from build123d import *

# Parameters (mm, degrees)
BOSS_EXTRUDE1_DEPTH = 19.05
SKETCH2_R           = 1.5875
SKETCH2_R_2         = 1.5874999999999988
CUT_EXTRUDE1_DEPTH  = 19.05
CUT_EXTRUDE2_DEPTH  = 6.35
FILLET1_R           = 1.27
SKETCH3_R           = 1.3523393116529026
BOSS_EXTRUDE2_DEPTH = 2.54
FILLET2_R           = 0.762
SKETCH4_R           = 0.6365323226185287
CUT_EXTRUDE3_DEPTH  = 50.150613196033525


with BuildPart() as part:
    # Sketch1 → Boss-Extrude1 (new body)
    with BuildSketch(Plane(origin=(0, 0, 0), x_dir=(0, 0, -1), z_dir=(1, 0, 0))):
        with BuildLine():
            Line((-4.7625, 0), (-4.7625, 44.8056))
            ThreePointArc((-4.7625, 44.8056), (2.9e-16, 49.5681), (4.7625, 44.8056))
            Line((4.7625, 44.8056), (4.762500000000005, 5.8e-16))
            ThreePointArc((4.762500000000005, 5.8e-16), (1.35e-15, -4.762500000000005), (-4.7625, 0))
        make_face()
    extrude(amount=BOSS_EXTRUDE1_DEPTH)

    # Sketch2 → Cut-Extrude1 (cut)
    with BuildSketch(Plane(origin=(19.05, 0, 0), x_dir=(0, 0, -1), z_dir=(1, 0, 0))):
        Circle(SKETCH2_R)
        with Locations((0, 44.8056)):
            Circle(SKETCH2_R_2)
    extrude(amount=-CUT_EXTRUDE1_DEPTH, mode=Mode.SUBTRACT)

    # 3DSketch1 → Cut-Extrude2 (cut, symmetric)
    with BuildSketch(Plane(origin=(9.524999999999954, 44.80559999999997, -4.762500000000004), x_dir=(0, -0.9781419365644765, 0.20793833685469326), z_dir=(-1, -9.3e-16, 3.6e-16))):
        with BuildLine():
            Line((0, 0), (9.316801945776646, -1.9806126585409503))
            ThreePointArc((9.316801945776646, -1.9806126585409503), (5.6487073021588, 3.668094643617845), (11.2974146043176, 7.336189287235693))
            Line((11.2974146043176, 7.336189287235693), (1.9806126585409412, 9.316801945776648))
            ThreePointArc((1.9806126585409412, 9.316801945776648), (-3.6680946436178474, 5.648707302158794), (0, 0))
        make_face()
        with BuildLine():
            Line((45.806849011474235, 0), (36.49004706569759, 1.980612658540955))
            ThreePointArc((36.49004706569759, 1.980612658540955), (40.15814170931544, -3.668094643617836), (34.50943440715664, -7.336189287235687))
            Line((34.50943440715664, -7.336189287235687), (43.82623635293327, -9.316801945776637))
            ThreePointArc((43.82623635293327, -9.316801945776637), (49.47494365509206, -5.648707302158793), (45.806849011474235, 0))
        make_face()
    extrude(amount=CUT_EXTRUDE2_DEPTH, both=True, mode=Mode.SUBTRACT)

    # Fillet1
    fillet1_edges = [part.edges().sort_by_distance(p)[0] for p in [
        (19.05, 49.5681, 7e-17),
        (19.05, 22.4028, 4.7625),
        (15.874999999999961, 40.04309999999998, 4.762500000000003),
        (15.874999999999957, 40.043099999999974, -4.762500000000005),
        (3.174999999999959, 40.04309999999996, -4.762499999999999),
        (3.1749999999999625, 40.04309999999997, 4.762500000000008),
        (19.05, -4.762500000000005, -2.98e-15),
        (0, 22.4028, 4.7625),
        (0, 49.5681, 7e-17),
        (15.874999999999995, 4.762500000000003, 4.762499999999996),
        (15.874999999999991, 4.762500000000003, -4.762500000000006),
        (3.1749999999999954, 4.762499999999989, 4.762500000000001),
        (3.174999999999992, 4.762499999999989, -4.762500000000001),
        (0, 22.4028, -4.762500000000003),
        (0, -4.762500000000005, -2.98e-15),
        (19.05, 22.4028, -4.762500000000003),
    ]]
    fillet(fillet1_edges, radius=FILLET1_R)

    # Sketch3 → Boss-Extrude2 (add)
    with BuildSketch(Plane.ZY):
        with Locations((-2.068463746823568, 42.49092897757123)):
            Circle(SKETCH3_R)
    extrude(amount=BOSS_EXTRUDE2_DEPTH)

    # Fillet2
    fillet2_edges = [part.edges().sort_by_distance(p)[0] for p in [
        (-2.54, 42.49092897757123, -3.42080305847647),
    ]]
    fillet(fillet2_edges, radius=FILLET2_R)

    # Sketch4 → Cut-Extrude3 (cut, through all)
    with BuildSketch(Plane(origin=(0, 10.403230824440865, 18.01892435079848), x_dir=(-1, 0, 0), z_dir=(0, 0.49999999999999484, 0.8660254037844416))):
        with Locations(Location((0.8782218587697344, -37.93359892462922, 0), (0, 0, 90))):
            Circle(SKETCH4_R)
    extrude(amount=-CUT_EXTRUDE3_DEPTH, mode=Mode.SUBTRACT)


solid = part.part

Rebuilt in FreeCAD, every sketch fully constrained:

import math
import FreeCAD as App
import Part
import Sketcher

V = App.Vector
Q = App.Units.Quantity


def edges_at(feature, points):
    """Names of the edges that pass closest to the given points."""
    edges = feature.Shape.Edges
    near = lambda p: min(range(len(edges)), key=lambda i: edges[i].distToShape(Part.Vertex(*p))[0])
    return sorted({f"Edge{near(p) + 1}" for p in points})

doc = App.newDocument("Part")
body = doc.addObject("PartDesign::Body", "Body")

# Sketch on YZ plane
sketch1 = body.newObject("Sketcher::SketchObject", "Sketch")
sketch1.AttachmentSupport = (doc.getObject("YZ_Plane"), [""])
sketch1.MapMode = "FlatFace"
sketch1.addGeometry(Part.LineSegment(V(44.8, 4.8, 0), V(0, 4.8, 0)), False)
sketch1.addGeometry(Part.ArcOfCircle(Part.Circle(V(0, 0, 0), V(0, 0, 1), 4.8), math.radians(90), math.radians(270)), False)
sketch1.addGeometry(Part.LineSegment(V(0, -4.8, 0), V(44.8, -4.8, 0)), False)
sketch1.addGeometry(Part.ArcOfCircle(Part.Circle(V(44.8, 0, 0), V(0, 0, 1), 4.8), math.radians(-90), math.radians(90)), False)
sketch1.addConstraint(Sketcher.Constraint("Tangent", 0, 2, 1, 1))
sketch1.addConstraint(Sketcher.Constraint("Tangent", 1, 2, 2, 1))
sketch1.addConstraint(Sketcher.Constraint("Tangent", 2, 2, 3, 1))
sketch1.addConstraint(Sketcher.Constraint("Tangent", 3, 2, 0, 1))
sketch1.addConstraint(Sketcher.Constraint("Horizontal", 0))
sketch1.addConstraint(Sketcher.Constraint("Horizontal", 2))
sketch1.addConstraint(Sketcher.Constraint("Coincident", 1, 3, -1, 1))
sketch1.addConstraint(Sketcher.Constraint("Radius", 1, Q("0.1875 in")))
sketch1.addConstraint(Sketcher.Constraint("DistanceX", 0, 2, 0, 1, Q("1.764 in")))
pad1 = body.newObject("PartDesign::Pad", "Pad")
pad1.Profile = sketch1
pad1.Length = Q("0.75 in")

# Sketch on YZ plane
sketch2 = body.newObject("Sketcher::SketchObject", "Sketch001")
sketch2.AttachmentSupport = (doc.getObject("YZ_Plane"), [""])
sketch2.MapMode = "FlatFace"
sketch2.AttachmentOffset = App.Placement(V(0, 0, 0.75 * 25.4), App.Rotation())
sketch2.addGeometry(Part.Circle(V(0, 0, 0), V(0, 0, 1), 1.6), False)
sketch2.addGeometry(Part.Circle(V(44.8, 0, 0), V(0, 0, 1), 1.6), False)
sketch2.addConstraint(Sketcher.Constraint("Coincident", 0, 3, -1, 1))
sketch2.addConstraint(Sketcher.Constraint("Equal", 0, 1))
sketch2.addConstraint(Sketcher.Constraint("PointOnObject", 1, 3, -1))
sketch2.addConstraint(Sketcher.Constraint("Diameter", 0, Q("0.125 in")))
sketch2.addConstraint(Sketcher.Constraint("DistanceX", -1, 1, 1, 3, Q("1.764 in")))
pocket1 = body.newObject("PartDesign::Pocket", "Pocket")
pocket1.Profile = sketch2
pocket1.Length = Q("0.75 in")

# Sketch on YZ plane
sketch3 = body.newObject("Sketcher::SketchObject", "Sketch002")
sketch3.AttachmentSupport = (doc.getObject("YZ_Plane"), [""])
sketch3.MapMode = "FlatFace"
sketch3.AttachmentOffset = App.Placement(V(0, 0, 0.375 * 25.4), App.Rotation())
sketch3.addGeometry(Part.LineSegment(V(44.8, -4.8, 0), V(35.3, -4.8, 0)), False)
sketch3.addGeometry(Part.ArcOfCircle(Part.Circle(V(35.3, 0, 0), V(0, 0, 1), 4.8), math.radians(-90), math.radians(90)), False)
sketch3.addGeometry(Part.LineSegment(V(35.3, 4.8, 0), V(44.8, 4.8, 0)), False)
sketch3.addGeometry(Part.ArcOfCircle(Part.Circle(V(44.8, 0, 0), V(0, 0, 1), 4.8), math.radians(-90), math.radians(90)), False)
sketch3.addGeometry(Part.LineSegment(V(0, 4.8, 0), V(9.5, 4.8, 0)), False)
sketch3.addGeometry(Part.ArcOfCircle(Part.Circle(V(9.5, 0, 0), V(0, 0, 1), 4.8), math.radians(90), math.radians(270)), False)
sketch3.addGeometry(Part.LineSegment(V(9.5, -4.8, 0), V(0, -4.8, 0)), False)
sketch3.addGeometry(Part.ArcOfCircle(Part.Circle(V(0, 0, 0), V(0, 0, 1), 4.8), math.radians(90), math.radians(270)), False)
sketch3.addConstraint(Sketcher.Constraint("Tangent", 0, 2, 1, 1))
sketch3.addConstraint(Sketcher.Constraint("Tangent", 1, 2, 2, 1))
sketch3.addConstraint(Sketcher.Constraint("Tangent", 2, 2, 3, 2))
sketch3.addConstraint(Sketcher.Constraint("Tangent", 3, 1, 0, 1))
sketch3.addConstraint(Sketcher.Constraint("Tangent", 4, 2, 5, 1))
sketch3.addConstraint(Sketcher.Constraint("Tangent", 5, 2, 6, 1))
sketch3.addConstraint(Sketcher.Constraint("Tangent", 6, 2, 7, 2))
sketch3.addConstraint(Sketcher.Constraint("Tangent", 7, 1, 4, 1))
sketch3.addConstraint(Sketcher.Constraint("Horizontal", 0))
sketch3.addConstraint(Sketcher.Constraint("Horizontal", 2))
sketch3.addConstraint(Sketcher.Constraint("Horizontal", 4))
sketch3.addConstraint(Sketcher.Constraint("Horizontal", 6))
sketch3.addConstraint(Sketcher.Constraint("Coincident", 7, 3, -1, 1))
sketch3.addConstraint(Sketcher.Constraint("Equal", 3, 5))
sketch3.addConstraint(Sketcher.Constraint("PointOnObject", 1, 3, -1))
sketch3.addConstraint(Sketcher.Constraint("Equal", 2, 4))
sketch3.addConstraint(Sketcher.Constraint("Radius", 1, Q("0.1875 in")))
sketch3.addConstraint(Sketcher.Constraint("DistanceX", 0, 2, 0, 1, Q("0.375 in")))
sketch3.addConstraint(Sketcher.Constraint("DistanceX", -1, 1, 1, 3, Q("1.389 in")))
pocket2 = body.newObject("PartDesign::Pocket", "Pocket001")
pocket2.Profile = sketch3
pocket2.Length = Q("0.5 in")
pocket2.Midplane = True
doc.recompute()

fillet = body.newObject("PartDesign::Fillet", "Fillet")
fillet.Base = (pocket2, edges_at(pocket2, [
    (19.05, 49.568, 0),
    (19.05, 22.403, 4.763),
    (15.875, 40.043, 4.763),
    (15.875, 40.043, -4.763),
    (3.175, 40.043, -4.763),
    (3.175, 40.043, 4.763),
    (19.05, -4.763, 0),
    (0, 22.403, 4.763),
    (0, 49.568, 0),
    (15.875, 4.763, 4.763),
    (15.875, 4.763, -4.763),
    (3.175, 4.763, 4.763),
    (3.175, 4.763, -4.763),
    (0, 22.403, -4.763),
    (0, -4.763, 0),
    (19.05, 22.403, -4.763),
]))
fillet.Radius = Q("0.05 in")

# Sketch on YZ plane
sketch4 = body.newObject("Sketcher::SketchObject", "Sketch003")
sketch4.AttachmentSupport = (doc.getObject("YZ_Plane"), [""])
sketch4.MapMode = "FlatFace"
sketch4.addGeometry(Part.Circle(V(42.5, -2.1, 0), V(0, 0, 1), 1.4), False)
sketch4.addConstraint(Sketcher.Constraint("Diameter", 0, 2.704679))
sketch4.addConstraint(Sketcher.Constraint("DistanceX", -1, 1, 0, 3, 42.490929))
sketch4.addConstraint(Sketcher.Constraint("DistanceY", 0, 3, -1, 1, 2.068464))
pad2 = body.newObject("PartDesign::Pad", "Pad001")
pad2.Profile = sketch4
pad2.Length = Q("0.1 in")
pad2.Reversed = True
doc.recompute()

fillet2 = body.newObject("PartDesign::Fillet", "Fillet001")
fillet2.Base = (pad2, edges_at(pad2, [(-2.54, 42.491, -3.421)]))
fillet2.Radius = Q("0.03 in")

# Sketch on an angled plane
sketch5 = body.newObject("Sketcher::SketchObject", "Sketch004")
sketch5.Placement = App.Placement(V(0, 10.403231, 18.018924), App.Rotation(V(-1, 0, 0), V(0, -0.866025404, 0.5), V(0, 0.5, 0.866025404), "ZXY"))
sketch5.addGeometry(Part.Circle(V(0.9, -37.9, 0), V(0, 0, 1), 0.6), False)
sketch5.addConstraint(Sketcher.Constraint("Diameter", 0, 1.273065))
sketch5.addConstraint(Sketcher.Constraint("DistanceY", 0, 3, -1, 1, 37.933599))
sketch5.addConstraint(Sketcher.Constraint("DistanceX", -1, 1, 0, 3, 0.878222))
pocket3 = body.newObject("PartDesign::Pocket", "Pocket002")
pocket3.Profile = sketch5
pocket3.Type = "ThroughAll"

doc.recompute()
